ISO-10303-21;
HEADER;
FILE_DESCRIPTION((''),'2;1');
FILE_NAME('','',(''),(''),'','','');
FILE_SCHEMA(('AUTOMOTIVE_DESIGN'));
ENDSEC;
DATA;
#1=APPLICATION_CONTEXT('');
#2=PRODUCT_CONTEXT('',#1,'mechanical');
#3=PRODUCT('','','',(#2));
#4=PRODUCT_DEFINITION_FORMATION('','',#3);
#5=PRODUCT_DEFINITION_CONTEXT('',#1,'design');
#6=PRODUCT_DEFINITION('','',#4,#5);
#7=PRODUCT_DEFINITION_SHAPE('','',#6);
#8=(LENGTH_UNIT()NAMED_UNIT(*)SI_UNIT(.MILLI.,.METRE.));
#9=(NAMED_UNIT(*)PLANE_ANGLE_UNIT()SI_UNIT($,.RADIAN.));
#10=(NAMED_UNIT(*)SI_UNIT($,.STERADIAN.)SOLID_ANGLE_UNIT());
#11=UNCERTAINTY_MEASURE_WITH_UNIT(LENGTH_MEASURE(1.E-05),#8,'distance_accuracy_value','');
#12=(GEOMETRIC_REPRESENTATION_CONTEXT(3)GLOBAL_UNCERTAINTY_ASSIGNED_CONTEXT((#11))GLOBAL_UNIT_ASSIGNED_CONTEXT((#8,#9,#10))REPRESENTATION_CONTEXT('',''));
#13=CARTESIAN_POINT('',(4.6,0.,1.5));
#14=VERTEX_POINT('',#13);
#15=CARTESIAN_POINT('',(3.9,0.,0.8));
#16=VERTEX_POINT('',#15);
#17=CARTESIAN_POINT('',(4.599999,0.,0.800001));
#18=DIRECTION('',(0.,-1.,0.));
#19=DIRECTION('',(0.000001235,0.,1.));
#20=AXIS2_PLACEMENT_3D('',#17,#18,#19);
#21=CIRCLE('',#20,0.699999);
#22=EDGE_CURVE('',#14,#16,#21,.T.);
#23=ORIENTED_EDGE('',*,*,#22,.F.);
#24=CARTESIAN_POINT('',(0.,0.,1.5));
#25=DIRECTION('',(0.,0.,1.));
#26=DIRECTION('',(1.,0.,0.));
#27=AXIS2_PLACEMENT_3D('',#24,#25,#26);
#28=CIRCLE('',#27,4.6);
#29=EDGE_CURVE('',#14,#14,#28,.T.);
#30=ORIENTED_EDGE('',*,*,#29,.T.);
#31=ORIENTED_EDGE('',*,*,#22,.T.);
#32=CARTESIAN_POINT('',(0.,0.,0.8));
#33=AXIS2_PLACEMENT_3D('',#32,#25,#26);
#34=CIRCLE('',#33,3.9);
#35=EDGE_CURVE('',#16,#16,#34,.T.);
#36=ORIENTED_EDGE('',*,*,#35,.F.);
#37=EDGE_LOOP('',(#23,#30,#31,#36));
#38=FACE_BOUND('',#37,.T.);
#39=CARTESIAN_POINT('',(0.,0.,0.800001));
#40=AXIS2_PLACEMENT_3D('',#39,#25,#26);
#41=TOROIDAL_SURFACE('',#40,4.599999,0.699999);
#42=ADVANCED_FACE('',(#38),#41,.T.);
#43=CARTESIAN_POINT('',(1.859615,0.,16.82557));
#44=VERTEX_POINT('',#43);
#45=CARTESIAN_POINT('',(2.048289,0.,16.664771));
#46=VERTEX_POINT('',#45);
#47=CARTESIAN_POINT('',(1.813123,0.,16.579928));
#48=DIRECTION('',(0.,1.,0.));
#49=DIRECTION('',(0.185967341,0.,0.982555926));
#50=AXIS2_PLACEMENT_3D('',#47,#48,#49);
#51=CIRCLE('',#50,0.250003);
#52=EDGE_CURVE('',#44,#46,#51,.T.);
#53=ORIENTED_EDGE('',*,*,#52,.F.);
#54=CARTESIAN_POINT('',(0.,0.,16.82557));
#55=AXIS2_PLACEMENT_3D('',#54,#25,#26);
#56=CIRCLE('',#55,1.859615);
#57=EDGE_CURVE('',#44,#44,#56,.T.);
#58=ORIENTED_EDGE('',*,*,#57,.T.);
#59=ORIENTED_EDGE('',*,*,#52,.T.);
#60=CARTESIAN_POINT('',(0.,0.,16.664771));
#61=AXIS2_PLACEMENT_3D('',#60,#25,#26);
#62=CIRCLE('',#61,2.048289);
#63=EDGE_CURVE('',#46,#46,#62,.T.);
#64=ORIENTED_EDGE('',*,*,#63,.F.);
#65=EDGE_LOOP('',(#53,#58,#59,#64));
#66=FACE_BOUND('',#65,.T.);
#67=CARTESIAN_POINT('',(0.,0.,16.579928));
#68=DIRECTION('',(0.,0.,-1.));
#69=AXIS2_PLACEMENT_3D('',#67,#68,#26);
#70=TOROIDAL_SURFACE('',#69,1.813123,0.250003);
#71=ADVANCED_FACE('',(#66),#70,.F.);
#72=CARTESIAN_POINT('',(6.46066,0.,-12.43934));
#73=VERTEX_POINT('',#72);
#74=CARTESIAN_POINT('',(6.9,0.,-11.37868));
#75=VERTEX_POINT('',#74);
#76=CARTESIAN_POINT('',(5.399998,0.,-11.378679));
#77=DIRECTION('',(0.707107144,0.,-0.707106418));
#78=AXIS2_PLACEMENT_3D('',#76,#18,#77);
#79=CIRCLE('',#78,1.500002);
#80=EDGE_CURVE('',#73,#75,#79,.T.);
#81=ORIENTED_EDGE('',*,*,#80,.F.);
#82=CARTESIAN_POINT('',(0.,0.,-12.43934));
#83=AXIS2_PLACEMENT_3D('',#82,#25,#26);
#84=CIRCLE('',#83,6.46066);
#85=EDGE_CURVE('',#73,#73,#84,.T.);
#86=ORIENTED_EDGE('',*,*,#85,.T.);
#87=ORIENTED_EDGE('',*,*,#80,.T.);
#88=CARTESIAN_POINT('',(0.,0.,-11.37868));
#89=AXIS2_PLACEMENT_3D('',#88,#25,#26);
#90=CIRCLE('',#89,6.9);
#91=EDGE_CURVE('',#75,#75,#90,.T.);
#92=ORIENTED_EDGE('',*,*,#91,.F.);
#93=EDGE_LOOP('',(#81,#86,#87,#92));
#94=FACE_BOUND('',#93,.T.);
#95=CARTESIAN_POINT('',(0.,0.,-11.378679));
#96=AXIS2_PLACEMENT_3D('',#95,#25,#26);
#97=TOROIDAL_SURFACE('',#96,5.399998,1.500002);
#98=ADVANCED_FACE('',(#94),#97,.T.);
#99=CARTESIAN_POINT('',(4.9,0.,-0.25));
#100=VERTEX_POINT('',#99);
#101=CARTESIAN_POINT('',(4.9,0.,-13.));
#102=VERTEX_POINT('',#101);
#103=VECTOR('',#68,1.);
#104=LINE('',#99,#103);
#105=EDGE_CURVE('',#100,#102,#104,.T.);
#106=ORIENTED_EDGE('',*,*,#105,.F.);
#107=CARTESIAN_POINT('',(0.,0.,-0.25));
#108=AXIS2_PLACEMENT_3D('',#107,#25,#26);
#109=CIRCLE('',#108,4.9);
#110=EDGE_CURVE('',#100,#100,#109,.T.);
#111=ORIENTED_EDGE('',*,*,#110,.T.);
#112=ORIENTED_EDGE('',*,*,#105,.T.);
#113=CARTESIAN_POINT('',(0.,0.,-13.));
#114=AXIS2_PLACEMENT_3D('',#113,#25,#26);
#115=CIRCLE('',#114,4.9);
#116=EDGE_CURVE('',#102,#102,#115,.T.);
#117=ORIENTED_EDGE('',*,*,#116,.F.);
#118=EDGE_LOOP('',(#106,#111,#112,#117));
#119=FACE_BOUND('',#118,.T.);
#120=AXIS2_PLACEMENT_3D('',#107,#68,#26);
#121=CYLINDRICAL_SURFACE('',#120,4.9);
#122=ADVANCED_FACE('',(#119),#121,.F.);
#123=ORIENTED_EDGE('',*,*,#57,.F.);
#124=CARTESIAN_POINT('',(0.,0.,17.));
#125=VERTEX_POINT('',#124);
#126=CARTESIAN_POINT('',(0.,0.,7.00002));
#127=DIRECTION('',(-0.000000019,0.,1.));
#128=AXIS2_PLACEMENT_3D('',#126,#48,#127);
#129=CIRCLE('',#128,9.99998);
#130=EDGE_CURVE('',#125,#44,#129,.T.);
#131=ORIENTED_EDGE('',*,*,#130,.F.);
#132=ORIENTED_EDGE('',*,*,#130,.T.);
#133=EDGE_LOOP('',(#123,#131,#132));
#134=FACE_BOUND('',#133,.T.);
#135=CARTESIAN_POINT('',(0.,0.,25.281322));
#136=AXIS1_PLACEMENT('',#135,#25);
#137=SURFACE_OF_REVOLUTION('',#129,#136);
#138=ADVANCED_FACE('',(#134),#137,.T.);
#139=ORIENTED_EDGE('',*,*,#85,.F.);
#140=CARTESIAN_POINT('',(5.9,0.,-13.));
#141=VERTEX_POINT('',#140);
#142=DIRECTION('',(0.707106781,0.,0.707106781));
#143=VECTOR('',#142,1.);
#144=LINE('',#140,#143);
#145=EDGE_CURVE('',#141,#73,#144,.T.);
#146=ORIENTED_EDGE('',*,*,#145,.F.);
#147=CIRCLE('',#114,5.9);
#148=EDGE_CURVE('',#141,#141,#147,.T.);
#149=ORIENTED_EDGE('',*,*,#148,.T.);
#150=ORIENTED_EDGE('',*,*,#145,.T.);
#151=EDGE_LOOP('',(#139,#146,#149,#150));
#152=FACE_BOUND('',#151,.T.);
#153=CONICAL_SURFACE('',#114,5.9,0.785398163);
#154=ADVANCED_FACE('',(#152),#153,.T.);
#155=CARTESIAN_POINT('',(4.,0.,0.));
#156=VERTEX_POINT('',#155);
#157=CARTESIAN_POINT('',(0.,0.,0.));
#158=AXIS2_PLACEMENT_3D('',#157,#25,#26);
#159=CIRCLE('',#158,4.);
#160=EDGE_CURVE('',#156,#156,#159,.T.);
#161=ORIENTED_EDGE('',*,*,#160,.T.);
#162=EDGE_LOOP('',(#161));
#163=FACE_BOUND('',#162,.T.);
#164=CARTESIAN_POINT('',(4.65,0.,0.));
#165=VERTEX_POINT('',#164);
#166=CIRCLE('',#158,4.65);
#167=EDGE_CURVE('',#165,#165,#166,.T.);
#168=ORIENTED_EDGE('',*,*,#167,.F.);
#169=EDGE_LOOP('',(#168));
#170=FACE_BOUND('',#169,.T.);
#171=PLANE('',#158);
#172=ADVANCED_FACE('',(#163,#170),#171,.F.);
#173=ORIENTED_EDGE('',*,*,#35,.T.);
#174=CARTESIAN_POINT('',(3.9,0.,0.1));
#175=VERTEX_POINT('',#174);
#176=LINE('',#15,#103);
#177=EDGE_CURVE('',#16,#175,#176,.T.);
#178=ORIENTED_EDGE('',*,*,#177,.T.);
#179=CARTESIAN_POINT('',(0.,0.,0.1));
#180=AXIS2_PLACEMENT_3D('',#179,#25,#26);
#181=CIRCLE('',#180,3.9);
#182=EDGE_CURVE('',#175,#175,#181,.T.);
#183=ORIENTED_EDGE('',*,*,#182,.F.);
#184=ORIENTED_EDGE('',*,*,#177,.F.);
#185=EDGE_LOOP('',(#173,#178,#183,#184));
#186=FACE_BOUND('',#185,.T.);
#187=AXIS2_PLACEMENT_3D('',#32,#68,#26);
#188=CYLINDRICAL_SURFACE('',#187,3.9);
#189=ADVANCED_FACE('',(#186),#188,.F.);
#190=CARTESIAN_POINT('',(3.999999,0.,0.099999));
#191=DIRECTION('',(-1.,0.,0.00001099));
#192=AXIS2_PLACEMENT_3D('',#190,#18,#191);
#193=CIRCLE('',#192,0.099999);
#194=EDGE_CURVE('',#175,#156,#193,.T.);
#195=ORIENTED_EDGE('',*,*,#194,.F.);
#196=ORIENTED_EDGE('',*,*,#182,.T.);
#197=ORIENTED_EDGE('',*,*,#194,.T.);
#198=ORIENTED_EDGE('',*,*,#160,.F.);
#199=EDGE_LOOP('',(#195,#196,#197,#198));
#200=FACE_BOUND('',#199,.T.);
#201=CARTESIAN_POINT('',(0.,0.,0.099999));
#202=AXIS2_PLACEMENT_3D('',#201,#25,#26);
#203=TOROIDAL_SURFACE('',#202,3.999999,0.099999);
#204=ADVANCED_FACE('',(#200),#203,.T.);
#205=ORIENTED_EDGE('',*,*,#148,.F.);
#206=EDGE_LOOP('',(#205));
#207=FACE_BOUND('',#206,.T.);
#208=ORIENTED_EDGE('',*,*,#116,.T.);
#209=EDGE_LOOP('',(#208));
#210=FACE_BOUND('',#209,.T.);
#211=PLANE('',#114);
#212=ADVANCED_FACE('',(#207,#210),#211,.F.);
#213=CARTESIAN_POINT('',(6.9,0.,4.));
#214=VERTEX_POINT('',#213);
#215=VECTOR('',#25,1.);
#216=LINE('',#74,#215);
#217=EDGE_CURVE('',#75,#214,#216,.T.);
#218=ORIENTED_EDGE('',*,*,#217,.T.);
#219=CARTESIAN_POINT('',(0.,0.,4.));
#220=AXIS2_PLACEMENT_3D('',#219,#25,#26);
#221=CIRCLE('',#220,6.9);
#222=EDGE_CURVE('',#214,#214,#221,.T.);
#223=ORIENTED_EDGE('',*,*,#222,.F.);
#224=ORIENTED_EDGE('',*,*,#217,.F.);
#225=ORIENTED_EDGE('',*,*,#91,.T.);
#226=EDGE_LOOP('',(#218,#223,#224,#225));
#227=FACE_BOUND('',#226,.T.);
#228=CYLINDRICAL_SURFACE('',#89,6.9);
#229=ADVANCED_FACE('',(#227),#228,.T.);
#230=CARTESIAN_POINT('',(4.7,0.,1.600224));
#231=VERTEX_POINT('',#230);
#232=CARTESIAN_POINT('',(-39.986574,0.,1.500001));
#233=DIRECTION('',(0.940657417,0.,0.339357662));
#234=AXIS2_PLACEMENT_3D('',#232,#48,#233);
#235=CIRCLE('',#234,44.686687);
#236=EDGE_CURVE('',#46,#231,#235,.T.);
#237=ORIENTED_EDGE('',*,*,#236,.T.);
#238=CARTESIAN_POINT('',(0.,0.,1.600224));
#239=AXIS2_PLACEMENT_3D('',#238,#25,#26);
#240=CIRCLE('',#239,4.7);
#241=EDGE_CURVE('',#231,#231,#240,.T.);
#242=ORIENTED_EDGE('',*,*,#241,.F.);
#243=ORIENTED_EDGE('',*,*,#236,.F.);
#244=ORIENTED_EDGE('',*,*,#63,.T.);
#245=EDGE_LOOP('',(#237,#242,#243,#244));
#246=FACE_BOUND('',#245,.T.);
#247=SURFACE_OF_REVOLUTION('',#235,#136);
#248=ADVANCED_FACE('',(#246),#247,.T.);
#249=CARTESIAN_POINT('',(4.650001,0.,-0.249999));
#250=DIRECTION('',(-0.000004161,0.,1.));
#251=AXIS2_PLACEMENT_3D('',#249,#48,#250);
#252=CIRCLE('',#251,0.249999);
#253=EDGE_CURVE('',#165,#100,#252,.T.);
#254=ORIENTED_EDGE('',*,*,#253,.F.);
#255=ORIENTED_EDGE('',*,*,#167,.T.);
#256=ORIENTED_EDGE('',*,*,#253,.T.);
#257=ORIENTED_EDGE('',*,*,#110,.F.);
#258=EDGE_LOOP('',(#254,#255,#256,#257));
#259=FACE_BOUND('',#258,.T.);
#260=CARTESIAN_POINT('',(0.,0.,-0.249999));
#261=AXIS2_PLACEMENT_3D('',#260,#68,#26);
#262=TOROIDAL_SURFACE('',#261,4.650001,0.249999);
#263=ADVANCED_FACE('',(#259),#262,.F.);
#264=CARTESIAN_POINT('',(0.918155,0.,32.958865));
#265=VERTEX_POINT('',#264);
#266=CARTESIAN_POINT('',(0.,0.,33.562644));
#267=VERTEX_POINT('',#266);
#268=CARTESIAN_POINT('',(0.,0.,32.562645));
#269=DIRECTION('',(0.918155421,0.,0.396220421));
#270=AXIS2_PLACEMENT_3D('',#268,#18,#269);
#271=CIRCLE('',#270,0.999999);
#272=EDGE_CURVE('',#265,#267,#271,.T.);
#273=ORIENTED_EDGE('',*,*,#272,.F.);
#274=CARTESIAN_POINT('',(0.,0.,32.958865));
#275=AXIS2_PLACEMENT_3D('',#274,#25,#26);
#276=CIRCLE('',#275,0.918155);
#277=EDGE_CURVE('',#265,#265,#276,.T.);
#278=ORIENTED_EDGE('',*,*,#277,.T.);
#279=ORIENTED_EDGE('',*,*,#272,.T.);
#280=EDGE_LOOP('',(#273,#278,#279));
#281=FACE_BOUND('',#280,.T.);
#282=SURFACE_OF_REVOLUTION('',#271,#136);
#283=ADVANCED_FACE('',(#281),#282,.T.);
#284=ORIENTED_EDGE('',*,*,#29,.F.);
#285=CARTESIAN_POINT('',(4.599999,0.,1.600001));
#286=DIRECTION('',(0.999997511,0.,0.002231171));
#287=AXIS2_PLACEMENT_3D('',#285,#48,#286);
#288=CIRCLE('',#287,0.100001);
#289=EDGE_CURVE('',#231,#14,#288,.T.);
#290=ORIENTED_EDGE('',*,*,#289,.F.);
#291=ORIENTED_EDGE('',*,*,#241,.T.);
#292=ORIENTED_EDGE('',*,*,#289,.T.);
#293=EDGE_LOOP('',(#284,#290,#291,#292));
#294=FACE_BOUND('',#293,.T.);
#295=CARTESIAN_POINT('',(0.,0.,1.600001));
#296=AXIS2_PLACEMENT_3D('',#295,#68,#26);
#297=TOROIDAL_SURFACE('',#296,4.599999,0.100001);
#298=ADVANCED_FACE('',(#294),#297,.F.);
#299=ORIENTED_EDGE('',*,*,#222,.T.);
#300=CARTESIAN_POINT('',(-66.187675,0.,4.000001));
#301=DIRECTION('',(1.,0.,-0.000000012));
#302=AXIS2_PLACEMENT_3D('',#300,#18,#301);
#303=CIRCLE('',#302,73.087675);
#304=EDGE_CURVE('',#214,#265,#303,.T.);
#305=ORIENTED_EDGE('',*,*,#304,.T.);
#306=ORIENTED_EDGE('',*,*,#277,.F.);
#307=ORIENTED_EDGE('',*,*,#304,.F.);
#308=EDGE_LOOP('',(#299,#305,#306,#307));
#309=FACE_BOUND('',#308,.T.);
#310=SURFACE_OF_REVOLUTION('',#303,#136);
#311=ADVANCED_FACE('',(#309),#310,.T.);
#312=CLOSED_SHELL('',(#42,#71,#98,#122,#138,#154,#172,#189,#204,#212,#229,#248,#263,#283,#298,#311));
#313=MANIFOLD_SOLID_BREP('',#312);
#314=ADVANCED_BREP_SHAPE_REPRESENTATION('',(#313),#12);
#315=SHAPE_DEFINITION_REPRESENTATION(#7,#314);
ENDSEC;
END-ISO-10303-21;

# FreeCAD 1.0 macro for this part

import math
import FreeCAD as App
import Part
import Sketcher
Q = App.Units.Quantity

doc = App.newDocument("Part")
body = doc.addObject("PartDesign::Body", "Body")

# Sketch on XZ plane
sketch1 = body.newObject("Sketcher::SketchObject", "Sketch")
sketch1.AttachmentSupport = (doc.getObject("XZ_Plane"), [""])
sketch1.MapMode = "FlatFace"
sketch1.addGeometry([
    Part.LineSegment(App.Vector(6.9, -11.38, 0), App.Vector(6.9, 4, 0)),  # 0
    Part.ArcOfCircle(Part.Circle(App.Vector(-66.19, 4, 0), App.Vector(0, 0, 1), 73.09), math.radians(0), math.radians(23)),  # 1
    Part.ArcOfCircle(Part.Circle(App.Vector(0, 32.56, 0), App.Vector(0, 0, 1), 1), math.radians(23), math.radians(90)),  # 2
    Part.LineSegment(App.Vector(0, 33.56, 0), App.Vector(0, 17, 0)),  # 3
    Part.ArcOfCircle(Part.Circle(App.Vector(0, 7, 0), App.Vector(0, 0, 1), 10), math.radians(79.28), math.radians(90)),  # 4
    Part.ArcOfCircle(Part.Circle(App.Vector(1.81, 16.58, 0), App.Vector(0, 0, 1), 0.25), math.radians(20), math.radians(79)),  # 5
    Part.ArcOfCircle(Part.Circle(App.Vector(-39.99, 1.5, 0), App.Vector(0, 0, 1), 44.69), math.radians(0.13), math.radians(19.84)),  # 6
    Part.ArcOfCircle(Part.Circle(App.Vector(4.6, 1.6, 0), App.Vector(0, 0, 1), 0.1), math.radians(-90), math.radians(0)),  # 7
    Part.ArcOfCircle(Part.Circle(App.Vector(4.6, 0.8, 0), App.Vector(0, 0, 1), 0.7), math.radians(90), math.radians(180)),  # 8
    Part.LineSegment(App.Vector(3.9, 0.8, 0), App.Vector(3.9, 0.1, 0)),  # 9
    Part.ArcOfCircle(Part.Circle(App.Vector(4, 0.1, 0), App.Vector(0, 0, 1), 0.1), math.radians(180), math.radians(270)),  # 10
    Part.LineSegment(App.Vector(4, 0, 0), App.Vector(4.65, 0, 0)),  # 11
    Part.ArcOfCircle(Part.Circle(App.Vector(4.65, -0.25, 0), App.Vector(0, 0, 1), 0.25), math.radians(0), math.radians(90)),  # 12
    Part.LineSegment(App.Vector(4.9, -0.25, 0), App.Vector(4.9, -13, 0)),  # 13
    Part.LineSegment(App.Vector(4.9, -13, 0), App.Vector(5.9, -13, 0)),  # 14
    Part.LineSegment(App.Vector(5.9, -13, 0), App.Vector(6.46, -12.44, 0)),  # 15
    Part.ArcOfCircle(Part.Circle(App.Vector(5.4, -11.38, 0), App.Vector(0, 0, 1), 1.5), math.radians(-45), math.radians(0)),  # 16
], False)
sketch1.addConstraint([
    Sketcher.Constraint("Tangent", 0, 2, 1, 1),
    Sketcher.Constraint("Tangent", 1, 2, 2, 1),
    Sketcher.Constraint("Coincident", 2, 2, 3, 1),
    Sketcher.Constraint("Coincident", 3, 2, 4, 2),
    Sketcher.Constraint("Coincident", 4, 1, 5, 2),
    Sketcher.Constraint("Coincident", 5, 1, 6, 2),
    Sketcher.Constraint("Coincident", 6, 1, 7, 2),
    Sketcher.Constraint("Coincident", 7, 1, 8, 1),
    Sketcher.Constraint("Tangent", 8, 2, 9, 1),
    Sketcher.Constraint("Coincident", 9, 2, 10, 1),
    Sketcher.Constraint("Coincident", 10, 2, 11, 1),
    Sketcher.Constraint("Coincident", 11, 2, 12, 2),
    Sketcher.Constraint("Coincident", 12, 1, 13, 1),
    Sketcher.Constraint("Coincident", 13, 2, 14, 1),
    Sketcher.Constraint("Coincident", 14, 2, 15, 1),
    Sketcher.Constraint("Tangent", 15, 2, 16, 1),
    Sketcher.Constraint("Tangent", 16, 2, 0, 1),
    Sketcher.Constraint("Vertical", 0),
    Sketcher.Constraint("Vertical", 3),
    Sketcher.Constraint("Vertical", 9),
    Sketcher.Constraint("Horizontal", 11),
    Sketcher.Constraint("Vertical", 13),
    Sketcher.Constraint("Horizontal", 14),
    Sketcher.Constraint("Equal", 7, 10),
    Sketcher.Constraint("PointOnObject", 2, 3, -2),
    Sketcher.Constraint("PointOnObject", 4, 3, -2),
    Sketcher.Constraint("PointOnObject", 2, 2, -2),
    Sketcher.Constraint("PointOnObject", 10, 2, -1),
    Sketcher.Constraint("Horizontal", 6, 3, 7, 1),
    Sketcher.Constraint("Horizontal", 10, 3, 9, 2),
    Sketcher.Constraint("Vertical", 7, 3, 8, 3),
    Sketcher.Constraint("Vertical", 8, 3, 7, 1),
    Sketcher.Constraint("Vertical", 12, 3, 11, 2),
    Sketcher.Constraint("Radius", 2, Q("0.999999 mm")),
    Sketcher.Constraint("Radius", 7, Q("0.100001 mm")),
    Sketcher.Constraint("Radius", 8, Q("0.699999 mm")),
    Sketcher.Constraint("DistanceX", 14, 1, 14, 2, Q("1 mm")),
    Sketcher.Constraint("Angle", 15, Q("45 deg")),
    Sketcher.Constraint("Radius", 12, Q("0.249999 mm")),
    Sketcher.Constraint("DistanceY", 9, 2, 9, 1, Q("0.7 mm")),
    Sketcher.Constraint("DistanceY", -1, 1, 1, 3, Q("4.000001 mm")),
    Sketcher.Constraint("DistanceX", -1, 1, 10, 3, Q("3.999999 mm")),
    Sketcher.Constraint("DistanceY", -1, 1, 3, 2, Q("17 mm")),
    Sketcher.Constraint("DistanceX", -1, 1, 10, 2, Q("4 mm")),
    Sketcher.Constraint("DistanceY", 13, 2, -1, 1, Q("13 mm")),
    Sketcher.Constraint("DistanceX", 9, 2, 12, 1, Q("1 mm")),
    Sketcher.Constraint("DistanceX", 14, 2, 16, 2, Q("1 mm")),
    Sketcher.Constraint("DistanceY", 13, 2, 13, 1, Q("12.75 mm")),
    Sketcher.Constraint("DistanceX", 10, 3, 16, 3, Q("1.399999 mm")),
    Sketcher.Constraint("Radius", 4, Q("9.99998 mm")),
    Sketcher.Constraint("Radius", 1, Q("73.087675 mm")),
    Sketcher.Constraint("Radius", 5, Q("0.250003 mm")),
    Sketcher.Constraint("Radius", 6, Q("44.686687 mm")),
    Sketcher.Constraint("DistanceY", 5, 1, 4, 1, Q("0.160799 mm")),
    Sketcher.Constraint("DistanceY", -1, 1, 4, 1, Q("16.82557 mm")),
    Sketcher.Constraint("DistanceY", -1, 1, 6, 1, Q("1.600224 mm")),
])
revolution = body.newObject("PartDesign::Revolution", "Revolution")
revolution.Profile = sketch1
revolution.ReferenceAxis = (sketch1, ["V_Axis"])
revolution.Angle = 360

doc.recompute()
